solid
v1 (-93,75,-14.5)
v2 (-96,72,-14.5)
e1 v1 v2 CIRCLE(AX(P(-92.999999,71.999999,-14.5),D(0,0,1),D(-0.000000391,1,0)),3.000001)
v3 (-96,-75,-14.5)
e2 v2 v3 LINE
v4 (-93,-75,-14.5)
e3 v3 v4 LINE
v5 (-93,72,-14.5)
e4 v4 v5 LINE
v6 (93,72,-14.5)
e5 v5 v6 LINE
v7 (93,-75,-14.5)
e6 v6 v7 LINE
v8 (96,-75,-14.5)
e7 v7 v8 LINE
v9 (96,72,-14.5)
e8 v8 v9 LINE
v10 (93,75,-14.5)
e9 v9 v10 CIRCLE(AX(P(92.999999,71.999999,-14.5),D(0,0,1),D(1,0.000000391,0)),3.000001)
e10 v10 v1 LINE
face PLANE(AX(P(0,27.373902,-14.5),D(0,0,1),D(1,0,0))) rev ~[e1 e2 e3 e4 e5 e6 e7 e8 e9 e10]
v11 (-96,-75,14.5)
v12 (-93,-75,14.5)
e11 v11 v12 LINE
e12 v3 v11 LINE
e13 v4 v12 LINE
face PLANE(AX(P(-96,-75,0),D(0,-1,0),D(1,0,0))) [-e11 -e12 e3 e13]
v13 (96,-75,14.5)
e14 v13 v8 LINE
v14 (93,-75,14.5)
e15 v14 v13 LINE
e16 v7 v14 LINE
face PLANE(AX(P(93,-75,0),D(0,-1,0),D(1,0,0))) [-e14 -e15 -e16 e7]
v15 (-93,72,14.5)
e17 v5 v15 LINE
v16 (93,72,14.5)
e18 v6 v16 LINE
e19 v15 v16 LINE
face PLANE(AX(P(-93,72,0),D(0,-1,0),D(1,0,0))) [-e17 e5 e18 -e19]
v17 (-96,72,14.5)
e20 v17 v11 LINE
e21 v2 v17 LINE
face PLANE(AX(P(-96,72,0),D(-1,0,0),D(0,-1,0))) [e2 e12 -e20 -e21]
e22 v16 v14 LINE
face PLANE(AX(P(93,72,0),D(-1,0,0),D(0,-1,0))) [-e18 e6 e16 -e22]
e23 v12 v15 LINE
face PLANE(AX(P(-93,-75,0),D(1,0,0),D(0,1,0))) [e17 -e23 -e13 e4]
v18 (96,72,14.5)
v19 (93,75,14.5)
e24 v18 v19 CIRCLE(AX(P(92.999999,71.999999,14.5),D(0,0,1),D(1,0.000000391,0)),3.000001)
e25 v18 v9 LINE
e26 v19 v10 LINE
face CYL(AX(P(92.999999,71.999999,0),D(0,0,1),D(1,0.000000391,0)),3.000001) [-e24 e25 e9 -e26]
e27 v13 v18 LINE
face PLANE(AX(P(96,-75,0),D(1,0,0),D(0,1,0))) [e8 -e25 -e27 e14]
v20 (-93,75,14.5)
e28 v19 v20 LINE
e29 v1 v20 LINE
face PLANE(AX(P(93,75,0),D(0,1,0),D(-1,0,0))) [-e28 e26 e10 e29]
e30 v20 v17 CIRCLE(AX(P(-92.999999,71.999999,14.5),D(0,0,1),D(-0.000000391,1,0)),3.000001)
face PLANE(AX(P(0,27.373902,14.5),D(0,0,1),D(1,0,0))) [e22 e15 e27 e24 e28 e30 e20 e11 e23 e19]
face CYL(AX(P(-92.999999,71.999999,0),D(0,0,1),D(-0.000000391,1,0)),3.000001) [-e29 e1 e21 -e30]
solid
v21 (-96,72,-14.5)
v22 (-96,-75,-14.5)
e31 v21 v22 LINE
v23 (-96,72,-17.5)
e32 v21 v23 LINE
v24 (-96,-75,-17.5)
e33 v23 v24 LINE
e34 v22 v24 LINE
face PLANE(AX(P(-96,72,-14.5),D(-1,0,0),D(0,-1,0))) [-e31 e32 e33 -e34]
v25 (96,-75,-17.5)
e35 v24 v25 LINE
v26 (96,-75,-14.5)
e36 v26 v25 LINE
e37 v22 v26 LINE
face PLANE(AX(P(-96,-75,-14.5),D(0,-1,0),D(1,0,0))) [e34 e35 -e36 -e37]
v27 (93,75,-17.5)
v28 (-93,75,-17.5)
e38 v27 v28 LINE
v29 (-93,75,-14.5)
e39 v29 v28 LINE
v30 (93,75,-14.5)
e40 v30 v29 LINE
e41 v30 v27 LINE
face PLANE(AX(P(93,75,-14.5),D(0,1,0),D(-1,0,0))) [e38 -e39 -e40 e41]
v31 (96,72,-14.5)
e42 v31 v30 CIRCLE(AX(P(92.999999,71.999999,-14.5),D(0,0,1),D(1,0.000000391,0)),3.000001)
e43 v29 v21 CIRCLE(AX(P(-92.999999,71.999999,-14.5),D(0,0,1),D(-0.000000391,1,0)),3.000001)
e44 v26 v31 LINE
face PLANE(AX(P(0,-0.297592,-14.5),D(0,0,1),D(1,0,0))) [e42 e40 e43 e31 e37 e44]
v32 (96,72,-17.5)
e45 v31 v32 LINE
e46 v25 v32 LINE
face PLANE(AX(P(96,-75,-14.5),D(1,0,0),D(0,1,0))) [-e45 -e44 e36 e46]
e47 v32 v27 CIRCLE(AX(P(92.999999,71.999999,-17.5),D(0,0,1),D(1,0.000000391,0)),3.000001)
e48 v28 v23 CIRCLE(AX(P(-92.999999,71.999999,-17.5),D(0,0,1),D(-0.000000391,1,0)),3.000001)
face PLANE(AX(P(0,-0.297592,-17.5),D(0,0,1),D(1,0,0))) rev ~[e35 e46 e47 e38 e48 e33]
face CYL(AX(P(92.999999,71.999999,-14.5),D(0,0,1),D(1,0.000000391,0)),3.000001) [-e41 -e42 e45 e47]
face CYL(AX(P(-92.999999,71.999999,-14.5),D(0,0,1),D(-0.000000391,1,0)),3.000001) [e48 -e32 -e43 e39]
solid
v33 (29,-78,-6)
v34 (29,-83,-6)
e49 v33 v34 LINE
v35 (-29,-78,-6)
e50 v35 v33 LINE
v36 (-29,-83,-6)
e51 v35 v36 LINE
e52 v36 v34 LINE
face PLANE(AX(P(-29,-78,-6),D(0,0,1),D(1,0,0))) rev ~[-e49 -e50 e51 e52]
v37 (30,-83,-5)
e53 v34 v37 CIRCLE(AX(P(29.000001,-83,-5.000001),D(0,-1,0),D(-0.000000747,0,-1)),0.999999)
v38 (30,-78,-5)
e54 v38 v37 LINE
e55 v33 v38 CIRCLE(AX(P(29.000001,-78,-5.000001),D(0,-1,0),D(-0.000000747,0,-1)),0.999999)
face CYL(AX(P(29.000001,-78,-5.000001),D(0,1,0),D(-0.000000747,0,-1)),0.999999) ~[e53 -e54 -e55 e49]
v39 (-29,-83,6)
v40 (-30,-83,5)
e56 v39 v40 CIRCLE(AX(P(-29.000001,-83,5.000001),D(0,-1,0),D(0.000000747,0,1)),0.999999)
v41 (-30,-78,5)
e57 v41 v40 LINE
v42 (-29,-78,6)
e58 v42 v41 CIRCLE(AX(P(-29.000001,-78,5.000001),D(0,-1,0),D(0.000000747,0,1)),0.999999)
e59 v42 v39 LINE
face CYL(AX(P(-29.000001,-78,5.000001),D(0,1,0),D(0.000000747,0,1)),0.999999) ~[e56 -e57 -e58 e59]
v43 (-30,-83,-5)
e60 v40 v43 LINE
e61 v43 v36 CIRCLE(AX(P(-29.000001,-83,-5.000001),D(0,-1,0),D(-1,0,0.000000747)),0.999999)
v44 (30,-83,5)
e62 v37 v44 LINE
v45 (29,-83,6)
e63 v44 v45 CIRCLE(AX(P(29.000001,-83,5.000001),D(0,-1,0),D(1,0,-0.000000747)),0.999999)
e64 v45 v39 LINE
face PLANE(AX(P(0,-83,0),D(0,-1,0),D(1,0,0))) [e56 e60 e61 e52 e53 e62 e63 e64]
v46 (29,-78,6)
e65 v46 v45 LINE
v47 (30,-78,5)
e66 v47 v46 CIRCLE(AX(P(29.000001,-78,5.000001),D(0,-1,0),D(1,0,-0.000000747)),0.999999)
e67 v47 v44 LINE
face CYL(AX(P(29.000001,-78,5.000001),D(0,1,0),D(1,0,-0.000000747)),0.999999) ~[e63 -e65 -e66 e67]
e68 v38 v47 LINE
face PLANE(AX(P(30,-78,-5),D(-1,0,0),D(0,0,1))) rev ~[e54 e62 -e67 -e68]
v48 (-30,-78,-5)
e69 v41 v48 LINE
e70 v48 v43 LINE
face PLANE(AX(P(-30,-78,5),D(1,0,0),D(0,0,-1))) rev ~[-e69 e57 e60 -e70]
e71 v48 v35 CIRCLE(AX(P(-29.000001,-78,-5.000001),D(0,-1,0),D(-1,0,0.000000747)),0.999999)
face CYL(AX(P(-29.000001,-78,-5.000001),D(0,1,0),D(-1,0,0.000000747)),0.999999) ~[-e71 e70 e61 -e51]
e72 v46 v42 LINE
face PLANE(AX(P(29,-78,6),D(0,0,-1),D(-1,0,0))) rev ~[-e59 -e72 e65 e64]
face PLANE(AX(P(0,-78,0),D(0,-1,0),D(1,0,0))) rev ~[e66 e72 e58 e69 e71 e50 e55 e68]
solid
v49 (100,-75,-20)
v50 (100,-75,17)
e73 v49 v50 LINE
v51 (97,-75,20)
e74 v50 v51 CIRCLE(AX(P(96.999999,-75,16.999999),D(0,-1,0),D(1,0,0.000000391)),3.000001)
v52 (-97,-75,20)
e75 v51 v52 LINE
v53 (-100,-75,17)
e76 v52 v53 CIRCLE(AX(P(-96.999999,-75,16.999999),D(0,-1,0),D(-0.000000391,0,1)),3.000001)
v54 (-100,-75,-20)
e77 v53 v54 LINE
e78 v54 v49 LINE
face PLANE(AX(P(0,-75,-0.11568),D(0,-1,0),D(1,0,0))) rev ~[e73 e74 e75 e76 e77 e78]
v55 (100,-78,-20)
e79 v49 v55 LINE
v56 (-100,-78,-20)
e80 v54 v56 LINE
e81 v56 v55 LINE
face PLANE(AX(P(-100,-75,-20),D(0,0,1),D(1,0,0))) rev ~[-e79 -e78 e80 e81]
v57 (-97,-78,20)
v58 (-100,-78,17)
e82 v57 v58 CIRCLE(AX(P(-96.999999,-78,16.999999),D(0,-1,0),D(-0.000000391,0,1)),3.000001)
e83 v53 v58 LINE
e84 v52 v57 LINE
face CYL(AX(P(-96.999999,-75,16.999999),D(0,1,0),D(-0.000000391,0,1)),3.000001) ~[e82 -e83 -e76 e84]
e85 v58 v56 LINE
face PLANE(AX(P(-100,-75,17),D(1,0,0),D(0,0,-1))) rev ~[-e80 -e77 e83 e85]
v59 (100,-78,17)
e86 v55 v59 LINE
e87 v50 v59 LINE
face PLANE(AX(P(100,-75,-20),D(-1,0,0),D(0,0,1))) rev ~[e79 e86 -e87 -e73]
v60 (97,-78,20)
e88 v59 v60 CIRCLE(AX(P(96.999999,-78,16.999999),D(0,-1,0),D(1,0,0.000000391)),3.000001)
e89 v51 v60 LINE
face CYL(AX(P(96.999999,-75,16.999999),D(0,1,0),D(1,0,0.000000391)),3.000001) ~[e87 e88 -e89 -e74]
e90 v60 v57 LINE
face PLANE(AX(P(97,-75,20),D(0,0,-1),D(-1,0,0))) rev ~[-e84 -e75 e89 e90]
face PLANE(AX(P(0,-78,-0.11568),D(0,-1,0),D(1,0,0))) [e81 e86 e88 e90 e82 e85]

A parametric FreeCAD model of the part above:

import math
import FreeCAD as App
import Part
import Sketcher

doc = App.newDocument("Part")
params = doc.addObject("Spreadsheet::Sheet", "Params")
for row, (alias, value) in enumerate([
    ("sketch1_radius", "3.000001 mm"),
    ("sketch1_width", "186 mm"),
    ("sketch1_height", "147 mm"),
    ("pad1_length", "14.5 mm"),
    ("pad1_length2", "14.5 mm"),
    ("sketch2_radius", "3.000001 mm"),
    ("sketch2_width", "194 mm"),
    ("sketch2_height", "37 mm"),
    ("pad2_length", "3 mm"),
    ("sketch3_radius", "3.000001 mm"),
    ("sketch3_width", "186 mm"),
    ("sketch3_height", "147 mm"),
    ("pad3_length", "3 mm"),
    ("sketch4_radius", "0.999999 mm"),
    ("sketch4_width", "58 mm"),
    ("sketch4_height", "10 mm"),
    ("pad4_length", "5 mm"),
], start=1):
    params.set(f"A{row}", alias)
    params.set(f"B{row}", "=" + value)
    params.setAlias(f"B{row}", alias)

body = doc.addObject("PartDesign::Body", "Body")

sketch1 = doc.addObject("Sketcher::SketchObject", "Sketch")
body.addObject(sketch1)
sketch1.AttachmentSupport = (doc.XY_Plane, [""])
sketch1.MapMode = "FlatFace"
sketch1.addGeometry([
    Part.LineSegment(App.Vector(93, 75, 0), App.Vector(-93, 75, 0)),
    Part.ArcOfCircle(Part.Circle(App.Vector(-92.999999, 71.999999, 0), App.Vector(0, 0, 1), 3.000001), math.radians(90.000022), math.radians(179.999978)),
    Part.LineSegment(App.Vector(-96, 72, 0), App.Vector(-96, -75, 0)),
    Part.LineSegment(App.Vector(-96, -75, 0), App.Vector(-93, -75, 0)),
    Part.LineSegment(App.Vector(-93, -75, 0), App.Vector(-93, 72, 0)),
    Part.LineSegment(App.Vector(-93, 72, 0), App.Vector(93, 72, 0)),
    Part.LineSegment(App.Vector(93, 72, 0), App.Vector(93, -75, 0)),
    Part.LineSegment(App.Vector(93, -75, 0), App.Vector(96, -75, 0)),
    Part.LineSegment(App.Vector(96, -75, 0), App.Vector(96, 72, 0)),
    Part.ArcOfCircle(Part.Circle(App.Vector(92.999999, 71.999999, 0), App.Vector(0, 0, 1), 3.000001), math.radians(0.000022), math.radians(89.999978)),
], False)
sketch1.addConstraint([
    Sketcher.Constraint("Tangent", 0, 2, 1, 1),
    Sketcher.Constraint("Tangent", 1, 2, 2, 1),
    Sketcher.Constraint("Coincident", 2, 2, 3, 1),
    Sketcher.Constraint("Coincident", 3, 2, 4, 1),
    Sketcher.Constraint("Coincident", 4, 2, 5, 1),
    Sketcher.Constraint("Coincident", 5, 2, 6, 1),
    Sketcher.Constraint("Coincident", 6, 2, 7, 1),
    Sketcher.Constraint("Coincident", 7, 2, 8, 1),
    Sketcher.Constraint("Tangent", 8, 2, 9, 1),
    Sketcher.Constraint("Tangent", 9, 2, 0, 1),
    Sketcher.Constraint("Horizontal", 0),
    Sketcher.Constraint("Vertical", 2),
    Sketcher.Constraint("Horizontal", 3),
    Sketcher.Constraint("Vertical", 4),
    Sketcher.Constraint("Horizontal", 5),
    Sketcher.Constraint("Vertical", 6),
    Sketcher.Constraint("Horizontal", 7),
    Sketcher.Constraint("Vertical", 8),
    Sketcher.Constraint("Coincident", 4, 2, 1, 3),
    Sketcher.Constraint("Coincident", 5, 2, 9, 3),
    Sketcher.Constraint("Symmetric", 0, 2, 6, 2, -1, 1),
    Sketcher.Constraint("Horizontal", 3, 2, 6, 2),
    Sketcher.Constraint("Radius", 1, 3.000001),
    Sketcher.Constraint("DistanceX", 0, 2, 0, 1, 186.0),
    Sketcher.Constraint("DistanceY", 2, 2, 2, 1, 147.0),
])
sketch1.setExpression("Constraints[22]", "Params.sketch1_radius")
sketch1.setExpression("Constraints[23]", "Params.sketch1_width")
sketch1.setExpression("Constraints[24]", "Params.sketch1_height")
pad1 = doc.addObject("PartDesign::Pad", "Pad")
body.addObject(pad1)
pad1.Profile = sketch1
pad1.Type = "TwoLengths"
pad1.setExpression("Length", "Params.pad1_length")
pad1.setExpression("Length2", "Params.pad1_length2")
body2 = doc.addObject("PartDesign::Body", "Body001")

sketch2 = doc.addObject("Sketcher::SketchObject", "Sketch001")
body2.addObject(sketch2)
sketch2.AttachmentSupport = (doc.getObject("XZ_Plane001"), [""])
sketch2.MapMode = "FlatFace"
sketch2.AttachmentOffset = App.Placement(App.Vector(0, 0, 75), App.Rotation())
sketch2.addGeometry([
    Part.LineSegment(App.Vector(97, 20, 0), App.Vector(-97, 20, 0)),
    Part.ArcOfCircle(Part.Circle(App.Vector(-96.999999, 16.999999, 0), App.Vector(0, 0, 1), 3.000001), math.radians(90.000022), math.radians(179.999978)),
    Part.LineSegment(App.Vector(-100, 17, 0), App.Vector(-100, -20, 0)),
    Part.LineSegment(App.Vector(-100, -20, 0), App.Vector(100, -20, 0)),
    Part.LineSegment(App.Vector(100, -20, 0), App.Vector(100, 17, 0)),
    Part.ArcOfCircle(Part.Circle(App.Vector(96.999999, 16.999999, 0), App.Vector(0, 0, 1), 3.000001), math.radians(0.000022), math.radians(89.999978)),
], False)
sketch2.addConstraint([
    Sketcher.Constraint("Tangent", 0, 2, 1, 1),
    Sketcher.Constraint("Tangent", 1, 2, 2, 1),
    Sketcher.Constraint("Coincident", 2, 2, 3, 1),
    Sketcher.Constraint("Coincident", 3, 2, 4, 1),
    Sketcher.Constraint("Tangent", 4, 2, 5, 1),
    Sketcher.Constraint("Tangent", 5, 2, 0, 1),
    Sketcher.Constraint("Horizontal", 0),
    Sketcher.Constraint("Vertical", 2),
    Sketcher.Constraint("Horizontal", 3),
    Sketcher.Constraint("Vertical", 4),
    Sketcher.Constraint("Equal", 1, 5),
    Sketcher.Constraint("Radius", 1, 3.000001),
    Sketcher.Constraint("DistanceX", 0, 2, 0, 1, 194.0),
    Sketcher.Constraint("DistanceY", 2, 2, 2, 1, 37.0),
    Sketcher.Constraint("DistanceX", 1, 3, -1, 1, 96.999999),
    Sketcher.Constraint("DistanceY", -1, 1, 1, 3, 16.999999),
])
sketch2.setExpression("Constraints[11]", "Params.sketch2_radius")
sketch2.setExpression("Constraints[12]", "Params.sketch2_width")
sketch2.setExpression("Constraints[13]", "Params.sketch2_height")
pad2 = doc.addObject("PartDesign::Pad", "Pad001")
body2.addObject(pad2)
pad2.Profile = sketch2
pad2.setExpression("Length", "Params.pad2_length")
body3 = doc.addObject("PartDesign::Body", "Body002")

sketch3 = doc.addObject("Sketcher::SketchObject", "Sketch002")
body3.addObject(sketch3)
sketch3.AttachmentSupport = (doc.getObject("XY_Plane002"), [""])
sketch3.MapMode = "FlatFace"
sketch3.AttachmentOffset = App.Placement(App.Vector(0, 0, -14.5), App.Rotation())
sketch3.addGeometry([
    Part.ArcOfCircle(Part.Circle(App.Vector(92.999999, 71.999999, 0), App.Vector(0, 0, 1), 3.000001), math.radians(0.000022), math.radians(89.999978)),
    Part.LineSegment(App.Vector(93, 75, 0), App.Vector(-93, 75, 0)),
    Part.ArcOfCircle(Part.Circle(App.Vector(-92.999999, 71.999999, 0), App.Vector(0, 0, 1), 3.000001), math.radians(90.000022), math.radians(179.999978)),
    Part.LineSegment(App.Vector(-96, 72, 0), App.Vector(-96, -75, 0)),
    Part.LineSegment(App.Vector(-96, -75, 0), App.Vector(96, -75, 0)),
    Part.LineSegment(App.Vector(96, -75, 0), App.Vector(96, 72, 0)),
], False)
sketch3.addConstraint([
    Sketcher.Constraint("Tangent", 0, 2, 1, 1),
    Sketcher.Constraint("Tangent", 1, 2, 2, 1),
    Sketcher.Constraint("Tangent", 2, 2, 3, 1),
    Sketcher.Constraint("Coincident", 3, 2, 4, 1),
    Sketcher.Constraint("Coincident", 4, 2, 5, 1),
    Sketcher.Constraint("Tangent", 5, 2, 0, 1),
    Sketcher.Constraint("Horizontal", 1),
    Sketcher.Constraint("Vertical", 3),
    Sketcher.Constraint("Horizontal", 4),
    Sketcher.Constraint("Vertical", 5),
    Sketcher.Constraint("Equal", 0, 2),
    Sketcher.Constraint("Radius", 0, 3.000001),
    Sketcher.Constraint("DistanceX", 1, 2, 1, 1, 186.0),
    Sketcher.Constraint("DistanceY", 3, 2, 3, 1, 147.0),
    Sketcher.Constraint("DistanceX", -1, 1, 0, 3, 92.999999),
    Sketcher.Constraint("DistanceY", -1, 1, 0, 3, 71.999999),
])
sketch3.setExpression("Constraints[11]", "Params.sketch3_radius")
sketch3.setExpression("Constraints[12]", "Params.sketch3_width")
sketch3.setExpression("Constraints[13]", "Params.sketch3_height")
pad3 = doc.addObject("PartDesign::Pad", "Pad002")
body3.addObject(pad3)
pad3.Profile = sketch3
pad3.setExpression("Length", "Params.pad3_length")
pad3.Reversed = True
body4 = doc.addObject("PartDesign::Body", "Body003")

sketch4 = doc.addObject("Sketcher::SketchObject", "Sketch003")
body4.addObject(sketch4)
sketch4.AttachmentSupport = (doc.getObject("XZ_Plane003"), [""])
sketch4.MapMode = "FlatFace"
sketch4.AttachmentOffset = App.Placement(App.Vector(0, 0, 78), App.Rotation())
sketch4.addGeometry([
    Part.ArcOfCircle(Part.Circle(App.Vector(29.000001, 5.000001, 0), App.Vector(0, 0, 1), 0.999999), math.radians(-0.000043), math.radians(90.000043)),
    Part.LineSegment(App.Vector(29, 6, 0), App.Vector(-29, 6, 0)),
    Part.ArcOfCircle(Part.Circle(App.Vector(-29.000001, 5.000001, 0), App.Vector(0, 0, 1), 0.999999), math.radians(89.999957), math.radians(180.000043)),
    Part.LineSegment(App.Vector(-30, 5, 0), App.Vector(-30, -5, 0)),
    Part.ArcOfCircle(Part.Circle(App.Vector(-29.000001, -5.000001, 0), App.Vector(0, 0, 1), 0.999999), math.radians(179.999957), math.radians(270.000043)),
    Part.LineSegment(App.Vector(-29, -6, 0), App.Vector(29, -6, 0)),
    Part.ArcOfCircle(Part.Circle(App.Vector(29.000001, -5.000001, 0), App.Vector(0, 0, 1), 0.999999), math.radians(-90.000043), math.radians(0.000043)),
    Part.LineSegment(App.Vector(30, -5, 0), App.Vector(30, 5, 0)),
], False)
sketch4.addConstraint([
    Sketcher.Constraint("Tangent", 0, 2, 1, 1),
    Sketcher.Constraint("Tangent", 1, 2, 2, 1),
    Sketcher.Constraint("Tangent", 2, 2, 3, 1),
    Sketcher.Constraint("Tangent", 3, 2, 4, 1),
    Sketcher.Constraint("Tangent", 4, 2, 5, 1),
    Sketcher.Constraint("Tangent", 5, 2, 6, 1),
    Sketcher.Constraint("Tangent", 6, 2, 7, 1),
    Sketcher.Constraint("Tangent", 7, 2, 0, 1),
    Sketcher.Constraint("Horizontal", 1),
    Sketcher.Constraint("Vertical", 3),
    Sketcher.Constraint("Horizontal", 5),
    Sketcher.Constraint("Vertical", 7),
    Sketcher.Constraint("Equal", 0, 2),
    Sketcher.Constraint("Equal", 2, 4),
    Sketcher.Constraint("Equal", 4, 6),
    Sketcher.Constraint("Symmetric", 0, 3, 4, 3, -1, 1),
    Sketcher.Constraint("Radius", 0, 0.999999),
    Sketcher.Constraint("DistanceX", 1, 2, 1, 1, 58.0),
    Sketcher.Constraint("DistanceY", 3, 2, 3, 1, 10.0),
])
sketch4.setExpression("Constraints[16]", "Params.sketch4_radius")
sketch4.setExpression("Constraints[17]", "Params.sketch4_width")
sketch4.setExpression("Constraints[18]", "Params.sketch4_height")
pad4 = doc.addObject("PartDesign::Pad", "Pad003")
body4.addObject(pad4)
pad4.Profile = sketch4
pad4.setExpression("Length", "Params.pad4_length")

doc.recompute()
